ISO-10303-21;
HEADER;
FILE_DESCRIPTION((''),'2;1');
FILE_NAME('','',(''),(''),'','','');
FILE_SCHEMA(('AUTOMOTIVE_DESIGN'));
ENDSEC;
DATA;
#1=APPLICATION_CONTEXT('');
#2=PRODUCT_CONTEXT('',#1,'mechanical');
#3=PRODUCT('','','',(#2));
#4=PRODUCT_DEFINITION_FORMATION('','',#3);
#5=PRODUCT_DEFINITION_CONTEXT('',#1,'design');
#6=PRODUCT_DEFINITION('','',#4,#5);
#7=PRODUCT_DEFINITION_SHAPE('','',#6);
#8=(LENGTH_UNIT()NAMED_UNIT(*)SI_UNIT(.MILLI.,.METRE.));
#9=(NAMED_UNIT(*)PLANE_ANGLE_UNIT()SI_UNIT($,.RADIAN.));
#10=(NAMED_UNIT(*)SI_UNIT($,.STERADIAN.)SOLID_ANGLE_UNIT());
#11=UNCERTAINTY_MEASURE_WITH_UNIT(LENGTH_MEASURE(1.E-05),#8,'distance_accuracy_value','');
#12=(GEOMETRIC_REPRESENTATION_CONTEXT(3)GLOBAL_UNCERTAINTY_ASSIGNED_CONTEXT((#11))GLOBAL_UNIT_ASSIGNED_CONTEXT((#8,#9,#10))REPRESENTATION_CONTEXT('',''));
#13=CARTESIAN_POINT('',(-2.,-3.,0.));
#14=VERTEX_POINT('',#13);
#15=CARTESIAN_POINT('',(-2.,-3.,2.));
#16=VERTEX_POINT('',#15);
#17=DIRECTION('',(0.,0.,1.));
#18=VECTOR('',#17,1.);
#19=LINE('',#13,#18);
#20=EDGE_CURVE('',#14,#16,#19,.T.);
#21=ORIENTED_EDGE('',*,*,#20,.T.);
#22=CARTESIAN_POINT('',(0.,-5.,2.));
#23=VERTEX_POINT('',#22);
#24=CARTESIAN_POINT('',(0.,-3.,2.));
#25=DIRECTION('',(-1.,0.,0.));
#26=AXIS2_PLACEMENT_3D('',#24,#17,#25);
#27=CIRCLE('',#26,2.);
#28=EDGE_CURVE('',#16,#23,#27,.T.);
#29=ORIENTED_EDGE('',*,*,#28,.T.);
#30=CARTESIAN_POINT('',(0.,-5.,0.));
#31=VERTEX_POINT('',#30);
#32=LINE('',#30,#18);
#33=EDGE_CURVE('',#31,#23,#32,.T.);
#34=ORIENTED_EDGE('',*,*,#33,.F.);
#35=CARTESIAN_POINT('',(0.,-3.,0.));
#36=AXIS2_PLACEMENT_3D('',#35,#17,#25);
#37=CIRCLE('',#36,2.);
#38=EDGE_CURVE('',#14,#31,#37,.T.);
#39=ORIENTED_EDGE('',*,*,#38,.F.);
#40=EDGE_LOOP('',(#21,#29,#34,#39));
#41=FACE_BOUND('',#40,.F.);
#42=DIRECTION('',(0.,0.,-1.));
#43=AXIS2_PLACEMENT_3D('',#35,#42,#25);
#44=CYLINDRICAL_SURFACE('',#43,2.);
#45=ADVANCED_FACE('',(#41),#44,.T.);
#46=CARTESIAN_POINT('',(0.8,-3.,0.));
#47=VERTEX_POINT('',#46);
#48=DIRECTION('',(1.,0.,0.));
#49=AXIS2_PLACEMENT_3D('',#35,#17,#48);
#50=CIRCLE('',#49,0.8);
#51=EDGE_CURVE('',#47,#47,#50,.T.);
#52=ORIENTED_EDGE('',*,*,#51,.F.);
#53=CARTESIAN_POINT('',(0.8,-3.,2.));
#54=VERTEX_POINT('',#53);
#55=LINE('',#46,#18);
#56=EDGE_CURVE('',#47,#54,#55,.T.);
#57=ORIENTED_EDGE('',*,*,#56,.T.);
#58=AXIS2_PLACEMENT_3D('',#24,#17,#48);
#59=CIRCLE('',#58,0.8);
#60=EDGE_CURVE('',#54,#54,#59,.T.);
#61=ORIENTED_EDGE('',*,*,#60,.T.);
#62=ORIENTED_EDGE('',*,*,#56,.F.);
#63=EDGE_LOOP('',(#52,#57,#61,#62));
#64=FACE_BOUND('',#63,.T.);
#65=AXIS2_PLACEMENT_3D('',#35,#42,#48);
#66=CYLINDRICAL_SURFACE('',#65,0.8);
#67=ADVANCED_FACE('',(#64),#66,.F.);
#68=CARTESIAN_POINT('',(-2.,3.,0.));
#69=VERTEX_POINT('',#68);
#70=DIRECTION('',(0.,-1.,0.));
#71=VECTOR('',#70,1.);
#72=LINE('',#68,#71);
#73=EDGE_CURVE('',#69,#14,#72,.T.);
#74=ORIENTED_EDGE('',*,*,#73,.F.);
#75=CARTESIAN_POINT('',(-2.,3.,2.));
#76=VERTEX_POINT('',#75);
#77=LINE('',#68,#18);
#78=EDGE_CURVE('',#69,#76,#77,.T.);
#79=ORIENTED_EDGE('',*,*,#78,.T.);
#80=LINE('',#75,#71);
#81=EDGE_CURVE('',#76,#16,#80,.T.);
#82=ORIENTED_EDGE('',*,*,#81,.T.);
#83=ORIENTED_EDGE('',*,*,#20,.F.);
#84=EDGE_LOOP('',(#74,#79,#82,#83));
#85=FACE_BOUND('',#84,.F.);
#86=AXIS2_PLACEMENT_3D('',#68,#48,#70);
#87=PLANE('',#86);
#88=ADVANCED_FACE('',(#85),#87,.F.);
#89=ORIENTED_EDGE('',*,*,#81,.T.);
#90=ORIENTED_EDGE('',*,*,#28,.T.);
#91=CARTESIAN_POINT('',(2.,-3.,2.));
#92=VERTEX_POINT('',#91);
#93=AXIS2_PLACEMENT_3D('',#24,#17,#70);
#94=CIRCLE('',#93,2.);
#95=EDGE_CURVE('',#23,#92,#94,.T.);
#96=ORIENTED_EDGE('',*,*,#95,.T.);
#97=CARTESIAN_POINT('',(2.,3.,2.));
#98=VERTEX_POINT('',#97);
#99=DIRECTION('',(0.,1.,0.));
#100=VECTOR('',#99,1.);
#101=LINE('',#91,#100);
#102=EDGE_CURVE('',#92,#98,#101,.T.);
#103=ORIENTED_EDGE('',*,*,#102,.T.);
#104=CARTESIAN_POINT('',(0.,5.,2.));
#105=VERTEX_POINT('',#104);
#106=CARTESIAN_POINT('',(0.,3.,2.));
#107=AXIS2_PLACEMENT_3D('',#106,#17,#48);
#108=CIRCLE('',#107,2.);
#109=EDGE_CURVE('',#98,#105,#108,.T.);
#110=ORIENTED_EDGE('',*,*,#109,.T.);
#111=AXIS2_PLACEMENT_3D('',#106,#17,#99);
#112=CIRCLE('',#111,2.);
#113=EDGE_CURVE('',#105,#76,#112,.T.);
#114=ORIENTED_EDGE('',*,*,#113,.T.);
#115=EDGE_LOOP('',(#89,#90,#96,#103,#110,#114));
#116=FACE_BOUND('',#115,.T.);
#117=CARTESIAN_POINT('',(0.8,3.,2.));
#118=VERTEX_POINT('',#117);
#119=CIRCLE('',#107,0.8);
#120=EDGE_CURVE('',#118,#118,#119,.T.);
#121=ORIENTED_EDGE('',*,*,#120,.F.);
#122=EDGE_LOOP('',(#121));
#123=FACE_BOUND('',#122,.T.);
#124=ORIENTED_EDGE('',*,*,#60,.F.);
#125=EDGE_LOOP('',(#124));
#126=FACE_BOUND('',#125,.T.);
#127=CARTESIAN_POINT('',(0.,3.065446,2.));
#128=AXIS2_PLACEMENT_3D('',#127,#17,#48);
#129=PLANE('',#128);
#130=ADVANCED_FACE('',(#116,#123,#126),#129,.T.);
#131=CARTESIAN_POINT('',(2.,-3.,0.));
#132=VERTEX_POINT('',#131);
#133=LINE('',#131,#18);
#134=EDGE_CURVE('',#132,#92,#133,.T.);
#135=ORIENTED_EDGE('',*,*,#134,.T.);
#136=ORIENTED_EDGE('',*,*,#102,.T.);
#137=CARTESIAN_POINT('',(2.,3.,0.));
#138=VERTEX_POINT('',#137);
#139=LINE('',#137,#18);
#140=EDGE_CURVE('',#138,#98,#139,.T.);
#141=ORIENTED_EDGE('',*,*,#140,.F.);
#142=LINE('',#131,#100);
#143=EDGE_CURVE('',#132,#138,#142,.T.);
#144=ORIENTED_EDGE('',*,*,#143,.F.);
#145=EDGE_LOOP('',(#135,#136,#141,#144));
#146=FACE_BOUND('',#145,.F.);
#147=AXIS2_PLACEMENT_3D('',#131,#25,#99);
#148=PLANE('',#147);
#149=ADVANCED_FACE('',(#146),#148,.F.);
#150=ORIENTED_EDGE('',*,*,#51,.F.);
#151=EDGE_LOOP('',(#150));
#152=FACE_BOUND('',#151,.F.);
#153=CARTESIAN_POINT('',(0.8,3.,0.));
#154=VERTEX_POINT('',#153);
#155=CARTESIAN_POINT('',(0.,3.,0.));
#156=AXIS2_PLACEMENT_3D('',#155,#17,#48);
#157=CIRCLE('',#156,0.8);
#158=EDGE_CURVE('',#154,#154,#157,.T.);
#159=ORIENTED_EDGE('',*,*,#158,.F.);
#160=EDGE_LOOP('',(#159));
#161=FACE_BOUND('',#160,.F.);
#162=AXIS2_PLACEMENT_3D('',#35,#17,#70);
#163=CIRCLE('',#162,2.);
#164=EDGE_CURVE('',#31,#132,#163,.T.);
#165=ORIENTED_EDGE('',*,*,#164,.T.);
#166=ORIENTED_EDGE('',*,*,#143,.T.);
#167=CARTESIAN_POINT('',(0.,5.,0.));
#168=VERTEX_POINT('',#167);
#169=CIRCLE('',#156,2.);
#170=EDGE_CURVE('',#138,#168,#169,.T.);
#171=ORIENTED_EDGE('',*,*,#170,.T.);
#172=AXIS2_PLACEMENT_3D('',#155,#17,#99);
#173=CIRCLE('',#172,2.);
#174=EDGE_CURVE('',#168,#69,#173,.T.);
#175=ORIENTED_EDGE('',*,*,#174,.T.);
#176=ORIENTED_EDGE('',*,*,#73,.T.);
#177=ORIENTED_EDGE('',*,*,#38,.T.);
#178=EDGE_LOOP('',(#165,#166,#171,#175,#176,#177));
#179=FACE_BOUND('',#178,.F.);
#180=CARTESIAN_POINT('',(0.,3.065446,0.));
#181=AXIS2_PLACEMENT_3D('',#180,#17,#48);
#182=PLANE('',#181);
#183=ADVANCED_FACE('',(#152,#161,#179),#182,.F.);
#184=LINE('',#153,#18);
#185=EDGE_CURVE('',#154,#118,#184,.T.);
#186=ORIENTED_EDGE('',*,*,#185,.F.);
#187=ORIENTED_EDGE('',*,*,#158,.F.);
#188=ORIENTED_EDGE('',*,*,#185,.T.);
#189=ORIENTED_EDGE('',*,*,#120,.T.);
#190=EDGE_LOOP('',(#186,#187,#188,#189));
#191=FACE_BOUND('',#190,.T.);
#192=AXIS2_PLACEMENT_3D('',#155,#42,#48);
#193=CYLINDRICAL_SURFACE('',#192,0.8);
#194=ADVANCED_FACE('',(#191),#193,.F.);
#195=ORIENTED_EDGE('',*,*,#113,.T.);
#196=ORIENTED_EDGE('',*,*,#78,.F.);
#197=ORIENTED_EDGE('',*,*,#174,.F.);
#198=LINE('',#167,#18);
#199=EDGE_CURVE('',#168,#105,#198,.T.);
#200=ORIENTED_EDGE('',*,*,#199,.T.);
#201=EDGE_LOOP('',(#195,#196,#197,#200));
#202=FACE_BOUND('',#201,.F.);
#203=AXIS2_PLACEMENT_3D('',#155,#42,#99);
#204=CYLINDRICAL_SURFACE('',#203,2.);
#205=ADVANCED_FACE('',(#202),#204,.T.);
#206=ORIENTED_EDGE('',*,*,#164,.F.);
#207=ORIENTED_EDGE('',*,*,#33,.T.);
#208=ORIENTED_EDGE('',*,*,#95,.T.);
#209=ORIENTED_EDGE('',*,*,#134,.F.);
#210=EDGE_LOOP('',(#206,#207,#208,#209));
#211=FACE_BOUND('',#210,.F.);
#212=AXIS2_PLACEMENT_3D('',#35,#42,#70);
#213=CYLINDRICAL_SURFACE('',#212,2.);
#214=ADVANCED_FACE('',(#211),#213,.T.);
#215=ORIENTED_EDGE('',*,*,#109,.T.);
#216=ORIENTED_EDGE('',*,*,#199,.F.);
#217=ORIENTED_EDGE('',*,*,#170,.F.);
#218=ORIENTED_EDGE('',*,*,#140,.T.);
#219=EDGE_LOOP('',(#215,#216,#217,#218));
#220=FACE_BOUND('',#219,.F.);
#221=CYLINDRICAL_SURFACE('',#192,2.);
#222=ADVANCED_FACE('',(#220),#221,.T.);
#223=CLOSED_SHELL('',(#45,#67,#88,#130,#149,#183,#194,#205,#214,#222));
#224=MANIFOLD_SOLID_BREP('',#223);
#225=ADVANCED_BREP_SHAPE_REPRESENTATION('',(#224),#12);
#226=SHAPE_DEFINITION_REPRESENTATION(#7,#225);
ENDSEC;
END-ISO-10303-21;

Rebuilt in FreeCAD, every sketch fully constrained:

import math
import FreeCAD as App
import Part
import Sketcher

doc = App.newDocument("Part")
body = doc.addObject("PartDesign::Body", "Body")

# Sketch on XY plane
sketch1 = doc.addObject("Sketcher::SketchObject", "Sketch")
body.addObject(sketch1)
sketch1.AttachmentSupport = (doc.XY_Plane, [""])
sketch1.MapMode = "FlatFace"
sketch1.addGeometry([
    Part.ArcOfCircle(Part.Circle(App.Vector(0, 3, 0), App.Vector(0, 0, 1), 2), math.radians(0), math.radians(90)),  # 0
    Part.ArcOfCircle(Part.Circle(App.Vector(0, 3, 0), App.Vector(0, 0, 1), 2), math.radians(90), math.radians(180)),  # 1
    Part.LineSegment(App.Vector(-2, 3, 0), App.Vector(-2, -3, 0)),  # 2
    Part.ArcOfCircle(Part.Circle(App.Vector(0, -3, 0), App.Vector(0, 0, 1), 2), math.radians(180), math.radians(270)),  # 3
    Part.ArcOfCircle(Part.Circle(App.Vector(0, -3, 0), App.Vector(0, 0, 1), 2), math.radians(-90), math.radians(0)),  # 4
    Part.LineSegment(App.Vector(2, -3, 0), App.Vector(2, 3, 0)),  # 5
    Part.Circle(App.Vector(0, -3, 0), App.Vector(0, 0, 1), 0.8),  # 6
    Part.Circle(App.Vector(0, 3, 0), App.Vector(0, 0, 1), 0.8),  # 7
], False)
sketch1.addConstraint([
    Sketcher.Constraint("Tangent", 0, 2, 1, 1),
    Sketcher.Constraint("Tangent", 1, 2, 2, 1),
    Sketcher.Constraint("Tangent", 2, 2, 3, 1),
    Sketcher.Constraint("Tangent", 3, 2, 4, 1),
    Sketcher.Constraint("Tangent", 4, 2, 5, 1),
    Sketcher.Constraint("Tangent", 5, 2, 0, 1),
    Sketcher.Constraint("Vertical", 2),
    Sketcher.Constraint("Vertical", 5),
    Sketcher.Constraint("Coincident", 6, 3, 3, 3),
    Sketcher.Constraint("Coincident", 7, 3, 0, 3),
    Sketcher.Constraint("Equal", 0, 1),
    Sketcher.Constraint("Equal", 1, 3),
    Sketcher.Constraint("Equal", 6, 7),
    Sketcher.Constraint("Symmetric", 0, 3, 3, 3, -1, 1),
    Sketcher.Constraint("PointOnObject", 0, 2, -2),
    Sketcher.Constraint("PointOnObject", 3, 2, -2),
    Sketcher.Constraint("Radius", 0, 2.0),
    Sketcher.Constraint("Diameter", 6, 1.6),
    Sketcher.Constraint("DistanceY", 2, 2, 2, 1, 6.0),
])
pad1 = doc.addObject("PartDesign::Pad", "Pad")
body.addObject(pad1)
pad1.Profile = sketch1
pad1.Length = 2

doc.recompute()
